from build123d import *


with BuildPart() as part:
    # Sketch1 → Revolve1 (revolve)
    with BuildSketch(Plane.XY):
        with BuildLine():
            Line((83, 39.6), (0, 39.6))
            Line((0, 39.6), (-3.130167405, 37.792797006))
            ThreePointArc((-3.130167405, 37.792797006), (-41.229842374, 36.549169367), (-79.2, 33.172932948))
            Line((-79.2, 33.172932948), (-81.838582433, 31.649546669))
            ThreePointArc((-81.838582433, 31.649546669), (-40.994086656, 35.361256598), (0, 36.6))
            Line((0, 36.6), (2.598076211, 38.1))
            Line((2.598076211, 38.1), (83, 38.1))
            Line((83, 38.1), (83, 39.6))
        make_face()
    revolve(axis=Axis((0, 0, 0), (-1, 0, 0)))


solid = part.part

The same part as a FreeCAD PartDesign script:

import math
import FreeCAD as App
import Part
import Sketcher
from FreeCAD import Vector
Q = App.Units.Quantity

doc = App.newDocument("Part")
body = doc.addObject("PartDesign::Body", "Body")

sketch1 = body.newObject("Sketcher::SketchObject", "Sketch")
sketch1.AttachmentSupport = (doc.getObject("XY_Plane"), [""])
sketch1.MapMode = "FlatFace"
sketch1.addGeometry(Part.LineSegment(Vector(83, 39.6, 0), Vector(0, 39.6, 0)), False)
sketch1.addGeometry(Part.LineSegment(Vector(0, 39.6, 0), Vector(-3.1, 37.8, 0)), False)
sketch1.addGeometry(Part.ArcOfCircle(Part.Circle(Vector(0, -642.3, 0), Vector(0, 0, 1), 680.1), math.radians(90.26), math.radians(96.69)), False)
sketch1.addGeometry(Part.LineSegment(Vector(-79.2, 33.2, 0), Vector(-81.8, 31.6, 0)), False)
sketch1.addGeometry(Part.ArcOfCircle(Part.Circle(Vector(0, -642.3, 0), Vector(0, 0, 1), 678.9), math.radians(90), math.radians(96.92)), False)
sketch1.addGeometry(Part.LineSegment(Vector(0, 36.6, 0), Vector(2.6, 38.1, 0)), False)
sketch1.addGeometry(Part.LineSegment(Vector(2.6, 38.1, 0), Vector(83, 38.1, 0)), False)
sketch1.addGeometry(Part.LineSegment(Vector(83, 38.1, 0), Vector(83, 39.6, 0)), False)
sketch1.addConstraint(Sketcher.Constraint("Coincident", 0, 2, 1, 1))
sketch1.addConstraint(Sketcher.Constraint("Coincident", 1, 2, 2, 1))
sketch1.addConstraint(Sketcher.Constraint("Coincident", 2, 2, 3, 1))
sketch1.addConstraint(Sketcher.Constraint("Coincident", 3, 2, 4, 2))
sketch1.addConstraint(Sketcher.Constraint("Coincident", 4, 1, 5, 1))
sketch1.addConstraint(Sketcher.Constraint("Coincident", 5, 2, 6, 1))
sketch1.addConstraint(Sketcher.Constraint("Coincident", 6, 2, 7, 1))
sketch1.addConstraint(Sketcher.Constraint("Coincident", 7, 2, 0, 1))
sketch1.addConstraint(Sketcher.Constraint("Horizontal", 0))
sketch1.addConstraint(Sketcher.Constraint("Horizontal", 6))
sketch1.addConstraint(Sketcher.Constraint("Vertical", 7))
sketch1.addConstraint(Sketcher.Constraint("Coincident", 4, 3, 2, 3))
sketch1.addConstraint(Sketcher.Constraint("PointOnObject", 2, 3, -2))
sketch1.addConstraint(Sketcher.Constraint("PointOnObject", 0, 2, -2))
sketch1.addConstraint(Sketcher.Constraint("Parallel", 1, 3))
sketch1.addConstraint(Sketcher.Constraint("Parallel", 3, 5))
sketch1.addConstraint(Sketcher.Constraint("DistanceX", 0, 2, 0, 1, Q("83 mm")))
sketch1.addConstraint(Sketcher.Constraint("Angle", 1, Q("-150 deg")))
sketch1.addConstraint(Sketcher.Constraint("Distance", 5, Q("3 mm")))
sketch1.addConstraint(Sketcher.Constraint("DistanceY", 7, 1, 7, 2, Q("1.5 mm")))
sketch1.addConstraint(Sketcher.Constraint("DistanceY", -1, 1, 0, 2, Q("39.6 mm")))
sketch1.addConstraint(Sketcher.Constraint("Radius", 2, Q("680.133838 mm")))
sketch1.addConstraint(Sketcher.Constraint("Radius", 4, Q("678.933838 mm")))
sketch1.addConstraint(Sketcher.Constraint("DistanceX", 6, 1, 6, 2, Q("80.401924 mm")))
sketch1.addConstraint(Sketcher.Constraint("DistanceY", 3, 2, 1, 2, Q("6.14325 mm")))
revolution = body.newObject("PartDesign::Revolution", "Revolution")
revolution.Profile = sketch1
revolution.ReferenceAxis = (sketch1, ["H_Axis"])
revolution.Angle = 360

doc.recompute()
